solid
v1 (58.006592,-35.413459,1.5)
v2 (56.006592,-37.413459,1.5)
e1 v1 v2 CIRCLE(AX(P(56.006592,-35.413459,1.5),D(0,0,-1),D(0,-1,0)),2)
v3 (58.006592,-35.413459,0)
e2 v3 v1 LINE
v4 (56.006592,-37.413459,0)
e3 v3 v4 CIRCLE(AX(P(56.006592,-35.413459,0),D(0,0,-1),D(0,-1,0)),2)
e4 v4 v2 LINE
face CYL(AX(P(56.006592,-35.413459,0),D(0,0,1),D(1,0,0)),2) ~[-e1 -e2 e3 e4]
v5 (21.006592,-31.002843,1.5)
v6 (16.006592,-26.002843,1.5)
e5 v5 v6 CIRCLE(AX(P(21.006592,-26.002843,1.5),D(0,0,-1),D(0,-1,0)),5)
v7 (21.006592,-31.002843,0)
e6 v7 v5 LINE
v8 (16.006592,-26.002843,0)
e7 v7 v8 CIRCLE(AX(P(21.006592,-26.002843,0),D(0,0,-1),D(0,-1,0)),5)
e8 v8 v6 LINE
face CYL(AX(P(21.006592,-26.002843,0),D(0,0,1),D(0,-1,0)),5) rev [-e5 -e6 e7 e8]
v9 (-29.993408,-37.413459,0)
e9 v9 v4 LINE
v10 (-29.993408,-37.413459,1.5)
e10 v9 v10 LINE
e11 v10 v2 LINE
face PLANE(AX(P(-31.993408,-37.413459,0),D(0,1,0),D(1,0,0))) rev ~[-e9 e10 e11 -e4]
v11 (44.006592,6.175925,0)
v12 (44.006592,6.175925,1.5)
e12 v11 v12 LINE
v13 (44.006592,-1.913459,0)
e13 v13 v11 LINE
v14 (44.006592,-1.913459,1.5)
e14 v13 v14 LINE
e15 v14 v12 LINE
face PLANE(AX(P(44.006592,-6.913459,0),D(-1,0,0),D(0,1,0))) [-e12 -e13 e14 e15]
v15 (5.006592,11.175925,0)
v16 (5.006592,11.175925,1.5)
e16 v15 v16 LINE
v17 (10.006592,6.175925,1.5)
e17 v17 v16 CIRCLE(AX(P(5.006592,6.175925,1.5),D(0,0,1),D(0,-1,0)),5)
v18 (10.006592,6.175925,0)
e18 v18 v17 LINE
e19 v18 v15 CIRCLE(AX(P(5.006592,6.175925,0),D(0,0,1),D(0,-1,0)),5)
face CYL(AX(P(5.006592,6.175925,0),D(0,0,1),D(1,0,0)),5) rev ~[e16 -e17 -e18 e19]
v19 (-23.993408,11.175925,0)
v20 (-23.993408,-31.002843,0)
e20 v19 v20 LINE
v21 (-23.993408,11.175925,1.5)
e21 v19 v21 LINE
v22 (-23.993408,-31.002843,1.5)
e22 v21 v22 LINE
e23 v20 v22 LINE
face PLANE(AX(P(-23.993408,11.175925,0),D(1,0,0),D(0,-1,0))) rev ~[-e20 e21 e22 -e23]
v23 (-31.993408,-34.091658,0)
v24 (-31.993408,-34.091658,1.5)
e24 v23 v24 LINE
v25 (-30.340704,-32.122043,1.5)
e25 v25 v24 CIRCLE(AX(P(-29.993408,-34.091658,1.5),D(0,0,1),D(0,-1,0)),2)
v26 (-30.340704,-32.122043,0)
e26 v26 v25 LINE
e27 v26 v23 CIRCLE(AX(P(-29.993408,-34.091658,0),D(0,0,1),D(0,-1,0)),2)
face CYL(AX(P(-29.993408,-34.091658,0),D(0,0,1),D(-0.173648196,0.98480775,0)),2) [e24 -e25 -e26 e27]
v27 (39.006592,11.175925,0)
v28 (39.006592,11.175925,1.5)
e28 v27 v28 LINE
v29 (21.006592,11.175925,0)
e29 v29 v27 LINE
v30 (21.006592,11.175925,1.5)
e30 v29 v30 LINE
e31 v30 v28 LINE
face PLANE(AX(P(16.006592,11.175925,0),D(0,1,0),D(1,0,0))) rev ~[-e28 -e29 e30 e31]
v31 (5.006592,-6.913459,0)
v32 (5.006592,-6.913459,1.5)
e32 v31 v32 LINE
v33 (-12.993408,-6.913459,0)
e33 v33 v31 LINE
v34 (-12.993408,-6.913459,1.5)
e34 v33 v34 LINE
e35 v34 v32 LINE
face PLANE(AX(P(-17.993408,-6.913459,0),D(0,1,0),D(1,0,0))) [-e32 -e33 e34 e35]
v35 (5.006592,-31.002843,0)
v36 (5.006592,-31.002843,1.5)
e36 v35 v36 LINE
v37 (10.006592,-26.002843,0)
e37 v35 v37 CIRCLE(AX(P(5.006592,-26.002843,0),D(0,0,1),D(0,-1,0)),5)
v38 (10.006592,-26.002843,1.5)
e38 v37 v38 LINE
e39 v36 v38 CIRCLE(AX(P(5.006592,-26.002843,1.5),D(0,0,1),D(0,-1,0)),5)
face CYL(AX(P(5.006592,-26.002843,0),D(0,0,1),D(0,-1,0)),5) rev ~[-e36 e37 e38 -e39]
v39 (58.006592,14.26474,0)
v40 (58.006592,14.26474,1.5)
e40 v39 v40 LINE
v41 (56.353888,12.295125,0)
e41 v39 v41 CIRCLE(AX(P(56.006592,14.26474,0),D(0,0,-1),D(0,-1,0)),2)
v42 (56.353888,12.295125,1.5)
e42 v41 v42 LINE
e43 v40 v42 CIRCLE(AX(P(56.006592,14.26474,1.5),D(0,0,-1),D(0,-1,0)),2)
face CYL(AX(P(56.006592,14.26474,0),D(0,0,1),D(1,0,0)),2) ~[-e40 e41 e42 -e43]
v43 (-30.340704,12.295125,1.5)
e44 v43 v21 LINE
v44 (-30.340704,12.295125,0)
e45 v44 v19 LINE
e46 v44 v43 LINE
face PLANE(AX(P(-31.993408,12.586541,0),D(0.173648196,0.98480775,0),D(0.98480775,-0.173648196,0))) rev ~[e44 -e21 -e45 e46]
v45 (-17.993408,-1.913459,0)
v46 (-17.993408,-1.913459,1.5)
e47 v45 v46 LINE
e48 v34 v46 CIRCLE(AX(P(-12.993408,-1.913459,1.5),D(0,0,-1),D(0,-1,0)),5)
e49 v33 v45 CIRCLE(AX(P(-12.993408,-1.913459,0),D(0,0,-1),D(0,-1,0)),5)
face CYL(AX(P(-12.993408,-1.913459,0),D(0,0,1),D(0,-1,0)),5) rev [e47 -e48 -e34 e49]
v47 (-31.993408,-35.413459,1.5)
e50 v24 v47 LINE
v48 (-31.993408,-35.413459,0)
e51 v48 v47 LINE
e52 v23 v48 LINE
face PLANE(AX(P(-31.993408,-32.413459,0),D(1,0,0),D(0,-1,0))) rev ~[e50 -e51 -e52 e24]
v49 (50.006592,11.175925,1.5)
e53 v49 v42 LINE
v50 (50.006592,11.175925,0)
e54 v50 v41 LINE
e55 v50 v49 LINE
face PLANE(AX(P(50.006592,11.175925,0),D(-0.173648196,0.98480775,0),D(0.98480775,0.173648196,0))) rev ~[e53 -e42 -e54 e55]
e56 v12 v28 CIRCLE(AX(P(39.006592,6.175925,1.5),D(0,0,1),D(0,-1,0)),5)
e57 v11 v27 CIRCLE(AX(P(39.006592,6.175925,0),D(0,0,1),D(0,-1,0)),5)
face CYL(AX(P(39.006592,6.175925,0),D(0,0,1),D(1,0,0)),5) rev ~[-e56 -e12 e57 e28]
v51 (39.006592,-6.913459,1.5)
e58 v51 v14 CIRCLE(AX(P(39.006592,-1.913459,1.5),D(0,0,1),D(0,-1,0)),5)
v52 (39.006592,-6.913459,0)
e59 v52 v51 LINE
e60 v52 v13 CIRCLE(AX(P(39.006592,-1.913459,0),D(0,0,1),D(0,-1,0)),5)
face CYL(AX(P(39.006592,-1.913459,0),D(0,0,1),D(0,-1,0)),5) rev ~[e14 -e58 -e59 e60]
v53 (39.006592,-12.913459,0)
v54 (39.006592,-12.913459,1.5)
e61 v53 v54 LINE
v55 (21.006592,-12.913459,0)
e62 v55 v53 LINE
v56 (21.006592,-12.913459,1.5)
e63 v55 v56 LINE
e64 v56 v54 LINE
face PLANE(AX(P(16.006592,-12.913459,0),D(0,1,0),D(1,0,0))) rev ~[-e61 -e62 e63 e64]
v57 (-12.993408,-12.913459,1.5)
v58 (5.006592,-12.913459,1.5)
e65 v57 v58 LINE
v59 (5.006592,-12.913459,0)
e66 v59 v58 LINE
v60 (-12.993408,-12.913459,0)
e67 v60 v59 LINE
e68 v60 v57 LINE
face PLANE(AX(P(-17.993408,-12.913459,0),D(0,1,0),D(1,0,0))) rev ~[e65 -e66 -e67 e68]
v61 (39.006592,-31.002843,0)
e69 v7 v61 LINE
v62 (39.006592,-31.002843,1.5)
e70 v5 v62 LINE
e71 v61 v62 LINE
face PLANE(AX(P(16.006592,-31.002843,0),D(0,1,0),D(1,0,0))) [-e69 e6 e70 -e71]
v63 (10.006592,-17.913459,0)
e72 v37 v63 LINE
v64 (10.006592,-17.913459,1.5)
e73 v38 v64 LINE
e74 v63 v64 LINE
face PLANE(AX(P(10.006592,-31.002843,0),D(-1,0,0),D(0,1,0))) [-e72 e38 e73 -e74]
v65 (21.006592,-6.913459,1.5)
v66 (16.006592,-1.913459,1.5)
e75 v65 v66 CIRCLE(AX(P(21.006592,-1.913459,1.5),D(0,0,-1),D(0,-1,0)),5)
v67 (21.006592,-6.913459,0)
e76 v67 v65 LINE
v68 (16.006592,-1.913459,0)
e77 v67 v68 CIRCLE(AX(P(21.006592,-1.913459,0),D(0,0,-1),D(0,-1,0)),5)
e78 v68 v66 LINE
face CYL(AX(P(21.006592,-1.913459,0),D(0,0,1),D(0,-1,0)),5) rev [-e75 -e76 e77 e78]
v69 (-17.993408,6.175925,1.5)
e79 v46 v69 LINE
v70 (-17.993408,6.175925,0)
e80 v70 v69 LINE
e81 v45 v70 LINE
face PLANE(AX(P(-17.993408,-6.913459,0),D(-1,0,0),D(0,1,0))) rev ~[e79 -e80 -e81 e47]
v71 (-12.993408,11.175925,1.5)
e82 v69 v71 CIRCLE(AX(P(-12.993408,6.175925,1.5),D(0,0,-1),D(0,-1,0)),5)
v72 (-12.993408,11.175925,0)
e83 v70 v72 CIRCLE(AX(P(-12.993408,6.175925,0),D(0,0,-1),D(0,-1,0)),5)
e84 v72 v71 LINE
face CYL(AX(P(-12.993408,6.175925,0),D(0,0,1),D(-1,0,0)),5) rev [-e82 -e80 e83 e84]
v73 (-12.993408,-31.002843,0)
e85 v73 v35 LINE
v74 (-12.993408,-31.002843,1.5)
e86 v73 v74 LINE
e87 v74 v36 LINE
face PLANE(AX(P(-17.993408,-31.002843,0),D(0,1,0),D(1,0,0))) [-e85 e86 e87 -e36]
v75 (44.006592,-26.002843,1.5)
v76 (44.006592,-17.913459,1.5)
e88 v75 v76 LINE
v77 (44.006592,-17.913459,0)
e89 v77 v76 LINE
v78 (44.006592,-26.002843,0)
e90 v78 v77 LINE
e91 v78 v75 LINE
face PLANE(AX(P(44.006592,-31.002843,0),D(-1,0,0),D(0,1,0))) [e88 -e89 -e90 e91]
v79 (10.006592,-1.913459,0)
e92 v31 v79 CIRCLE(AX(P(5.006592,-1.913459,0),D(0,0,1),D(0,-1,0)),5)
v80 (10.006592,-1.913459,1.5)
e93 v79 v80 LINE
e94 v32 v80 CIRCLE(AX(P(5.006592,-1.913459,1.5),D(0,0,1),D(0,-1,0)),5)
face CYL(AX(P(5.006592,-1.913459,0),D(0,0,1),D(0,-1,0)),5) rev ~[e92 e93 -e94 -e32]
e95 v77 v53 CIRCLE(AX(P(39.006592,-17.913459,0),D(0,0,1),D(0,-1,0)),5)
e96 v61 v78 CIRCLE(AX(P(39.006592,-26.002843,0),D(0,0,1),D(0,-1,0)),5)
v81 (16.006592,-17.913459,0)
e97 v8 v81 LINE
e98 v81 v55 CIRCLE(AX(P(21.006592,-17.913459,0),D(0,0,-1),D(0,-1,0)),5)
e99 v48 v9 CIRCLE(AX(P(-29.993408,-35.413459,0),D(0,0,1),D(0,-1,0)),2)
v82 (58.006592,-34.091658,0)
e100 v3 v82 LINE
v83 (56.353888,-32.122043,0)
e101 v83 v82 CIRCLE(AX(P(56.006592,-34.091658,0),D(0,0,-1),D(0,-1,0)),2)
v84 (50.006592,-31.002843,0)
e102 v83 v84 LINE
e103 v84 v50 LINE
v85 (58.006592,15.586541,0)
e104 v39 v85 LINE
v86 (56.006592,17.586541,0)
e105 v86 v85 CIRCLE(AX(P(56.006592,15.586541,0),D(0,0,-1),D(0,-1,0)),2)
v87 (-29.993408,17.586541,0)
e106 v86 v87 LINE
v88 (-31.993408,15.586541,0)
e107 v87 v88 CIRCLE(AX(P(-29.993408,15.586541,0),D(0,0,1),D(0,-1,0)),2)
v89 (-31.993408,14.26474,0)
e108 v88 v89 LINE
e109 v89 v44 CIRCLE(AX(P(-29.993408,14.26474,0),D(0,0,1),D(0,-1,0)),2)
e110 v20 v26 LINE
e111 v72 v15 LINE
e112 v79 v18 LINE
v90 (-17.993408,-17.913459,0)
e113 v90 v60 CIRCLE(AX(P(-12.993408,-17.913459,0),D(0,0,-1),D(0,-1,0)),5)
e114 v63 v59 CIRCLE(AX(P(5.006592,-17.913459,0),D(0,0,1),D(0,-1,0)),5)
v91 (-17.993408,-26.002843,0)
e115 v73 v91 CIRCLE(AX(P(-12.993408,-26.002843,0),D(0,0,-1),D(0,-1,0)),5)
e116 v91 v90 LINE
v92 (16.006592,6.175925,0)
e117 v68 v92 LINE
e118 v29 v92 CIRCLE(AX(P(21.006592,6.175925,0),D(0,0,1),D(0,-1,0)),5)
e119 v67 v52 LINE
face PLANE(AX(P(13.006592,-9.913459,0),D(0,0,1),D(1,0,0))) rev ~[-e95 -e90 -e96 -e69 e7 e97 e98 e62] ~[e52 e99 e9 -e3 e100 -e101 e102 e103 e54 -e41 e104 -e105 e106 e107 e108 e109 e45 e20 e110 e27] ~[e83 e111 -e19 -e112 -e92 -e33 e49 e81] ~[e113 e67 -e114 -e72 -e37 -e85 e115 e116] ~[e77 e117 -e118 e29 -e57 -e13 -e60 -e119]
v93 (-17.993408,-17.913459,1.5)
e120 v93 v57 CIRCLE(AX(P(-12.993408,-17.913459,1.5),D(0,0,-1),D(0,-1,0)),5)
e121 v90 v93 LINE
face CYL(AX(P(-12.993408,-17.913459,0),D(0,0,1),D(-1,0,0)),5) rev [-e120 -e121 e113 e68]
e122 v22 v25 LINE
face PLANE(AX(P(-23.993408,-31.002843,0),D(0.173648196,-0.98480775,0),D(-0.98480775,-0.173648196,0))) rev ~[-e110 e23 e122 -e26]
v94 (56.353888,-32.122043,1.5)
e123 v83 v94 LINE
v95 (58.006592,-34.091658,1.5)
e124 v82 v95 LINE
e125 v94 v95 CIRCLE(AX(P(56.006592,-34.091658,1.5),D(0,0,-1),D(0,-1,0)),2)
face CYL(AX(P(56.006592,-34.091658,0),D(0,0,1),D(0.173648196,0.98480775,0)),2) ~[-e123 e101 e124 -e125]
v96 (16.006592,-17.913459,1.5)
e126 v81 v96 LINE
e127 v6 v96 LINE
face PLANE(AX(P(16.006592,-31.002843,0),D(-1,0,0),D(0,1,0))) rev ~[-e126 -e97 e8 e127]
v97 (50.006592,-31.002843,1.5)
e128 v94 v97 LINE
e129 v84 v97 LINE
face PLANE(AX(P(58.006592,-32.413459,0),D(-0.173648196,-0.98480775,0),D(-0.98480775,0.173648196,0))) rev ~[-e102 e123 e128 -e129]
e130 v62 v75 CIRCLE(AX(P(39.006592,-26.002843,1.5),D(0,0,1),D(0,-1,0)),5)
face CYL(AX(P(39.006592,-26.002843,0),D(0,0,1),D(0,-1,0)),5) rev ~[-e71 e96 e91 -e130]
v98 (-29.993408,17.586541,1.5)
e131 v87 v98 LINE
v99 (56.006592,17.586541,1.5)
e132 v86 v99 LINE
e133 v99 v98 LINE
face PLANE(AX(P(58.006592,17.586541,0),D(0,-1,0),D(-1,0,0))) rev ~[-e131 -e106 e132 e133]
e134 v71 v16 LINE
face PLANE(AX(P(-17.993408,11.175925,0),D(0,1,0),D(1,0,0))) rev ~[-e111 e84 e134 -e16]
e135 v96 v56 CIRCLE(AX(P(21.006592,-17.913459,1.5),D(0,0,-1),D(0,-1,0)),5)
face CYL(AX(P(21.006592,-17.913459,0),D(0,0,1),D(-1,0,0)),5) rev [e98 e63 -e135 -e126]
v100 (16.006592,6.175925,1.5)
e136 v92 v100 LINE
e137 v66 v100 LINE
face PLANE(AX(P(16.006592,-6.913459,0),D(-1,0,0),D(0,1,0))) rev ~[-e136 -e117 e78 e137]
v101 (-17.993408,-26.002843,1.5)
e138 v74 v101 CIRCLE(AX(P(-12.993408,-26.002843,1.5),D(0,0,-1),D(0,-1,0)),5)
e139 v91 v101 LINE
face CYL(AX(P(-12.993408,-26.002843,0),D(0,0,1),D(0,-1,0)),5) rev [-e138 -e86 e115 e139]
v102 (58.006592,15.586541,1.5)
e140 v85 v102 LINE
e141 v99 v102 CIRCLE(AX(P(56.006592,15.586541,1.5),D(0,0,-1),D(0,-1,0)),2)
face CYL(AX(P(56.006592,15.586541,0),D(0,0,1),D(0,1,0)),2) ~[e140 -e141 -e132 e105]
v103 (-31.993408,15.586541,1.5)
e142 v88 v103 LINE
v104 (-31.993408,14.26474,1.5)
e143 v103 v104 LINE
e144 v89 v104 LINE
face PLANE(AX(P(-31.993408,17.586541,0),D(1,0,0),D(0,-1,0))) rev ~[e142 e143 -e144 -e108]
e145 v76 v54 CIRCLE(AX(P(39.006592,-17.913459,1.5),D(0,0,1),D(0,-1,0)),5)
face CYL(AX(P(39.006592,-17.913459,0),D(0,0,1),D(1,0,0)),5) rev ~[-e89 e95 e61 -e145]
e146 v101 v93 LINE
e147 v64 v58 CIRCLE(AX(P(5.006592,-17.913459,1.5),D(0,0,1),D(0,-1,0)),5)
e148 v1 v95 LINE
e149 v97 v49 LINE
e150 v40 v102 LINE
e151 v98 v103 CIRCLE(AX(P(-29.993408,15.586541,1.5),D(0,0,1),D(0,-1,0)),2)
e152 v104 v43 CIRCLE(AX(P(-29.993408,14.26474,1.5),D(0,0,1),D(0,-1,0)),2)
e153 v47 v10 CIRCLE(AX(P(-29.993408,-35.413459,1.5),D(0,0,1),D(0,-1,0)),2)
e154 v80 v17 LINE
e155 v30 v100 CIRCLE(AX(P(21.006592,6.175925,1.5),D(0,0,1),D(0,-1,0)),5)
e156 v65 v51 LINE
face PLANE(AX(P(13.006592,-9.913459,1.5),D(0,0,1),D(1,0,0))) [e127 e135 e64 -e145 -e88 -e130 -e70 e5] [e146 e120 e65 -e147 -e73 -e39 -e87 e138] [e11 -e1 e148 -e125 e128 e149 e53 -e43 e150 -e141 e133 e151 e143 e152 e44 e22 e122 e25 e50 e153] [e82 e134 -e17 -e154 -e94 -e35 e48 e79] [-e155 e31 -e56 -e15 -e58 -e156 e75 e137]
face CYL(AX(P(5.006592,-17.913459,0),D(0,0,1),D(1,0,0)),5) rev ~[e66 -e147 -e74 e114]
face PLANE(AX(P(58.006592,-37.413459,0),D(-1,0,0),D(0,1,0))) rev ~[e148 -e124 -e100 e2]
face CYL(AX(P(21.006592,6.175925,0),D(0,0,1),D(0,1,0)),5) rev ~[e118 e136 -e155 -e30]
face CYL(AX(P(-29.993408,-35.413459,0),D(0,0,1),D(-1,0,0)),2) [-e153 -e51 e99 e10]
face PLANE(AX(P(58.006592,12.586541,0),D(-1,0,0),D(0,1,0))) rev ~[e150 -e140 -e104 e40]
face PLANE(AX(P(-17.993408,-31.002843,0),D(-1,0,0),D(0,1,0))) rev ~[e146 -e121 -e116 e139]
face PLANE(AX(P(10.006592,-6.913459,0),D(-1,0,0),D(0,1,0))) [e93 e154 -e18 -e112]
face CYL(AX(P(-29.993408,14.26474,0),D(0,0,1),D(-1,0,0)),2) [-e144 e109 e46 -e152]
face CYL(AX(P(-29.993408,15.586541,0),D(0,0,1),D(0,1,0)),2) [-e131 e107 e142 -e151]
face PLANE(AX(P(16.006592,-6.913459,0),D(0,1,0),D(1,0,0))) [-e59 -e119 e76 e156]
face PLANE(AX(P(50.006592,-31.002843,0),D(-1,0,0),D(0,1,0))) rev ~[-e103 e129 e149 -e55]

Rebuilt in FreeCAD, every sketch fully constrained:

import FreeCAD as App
import Part
import Sketcher
Q = App.Units.Quantity


def edges_at(feature, points):
    """Names of the edges that pass closest to the given points."""
    edges = feature.Shape.Edges
    near = lambda p: min(range(len(edges)), key=lambda i: edges[i].distToShape(Part.Vertex(*p))[0])
    return sorted({f"Edge{near(p) + 1}" for p in points})


def add_polygon(sketch, points):
    """Adds a closed chain of lines whose ends are joined by coincident constraints."""
    first, n = sketch.GeometryCount, len(points)
    for a, b in zip(points, points[1:] + points[:1]):
        sketch.addGeometry(Part.LineSegment(App.Vector(*a, 0), App.Vector(*b, 0)), False)
    for i in range(n):
        sketch.addConstraint(Sketcher.Constraint("Coincident", first + i, 2, first + (i + 1) % n, 1))

doc = App.newDocument("Part")
body = doc.addObject("PartDesign::Body", "Body")

sketch1 = doc.addObject("Sketcher::SketchObject", "Sketch")
body.addObject(sketch1)
sketch1.AttachmentSupport = (doc.XY_Plane, [""])
sketch1.MapMode = "FlatFace"
add_polygon(sketch1, [(58.006592, 17.586541), (-31.993408, 17.586541), (-31.993408, 12.586541), (-23.993408, 11.175925), (-23.993408, -31.002843), (-31.993408, -32.413459), (-31.993408, -37.413459), (58.006592, -37.413459), (58.006592, -32.413459), (50.006592, -31.002843), (50.006592, 11.175925), (58.006592, 12.586541)])
add_polygon(sketch1, [(10.006592, -31.002843), (-17.993408, -31.002843), (-17.993408, -12.913459), (10.006592, -12.913459)])
add_polygon(sketch1, [(44.006592, -31.002843), (16.006592, -31.002843), (16.006592, -12.913459), (44.006592, -12.913459)])
add_polygon(sketch1, [(10.006592, -6.913459), (-17.993408, -6.913459), (-17.993408, 11.175925), (10.006592, 11.175925)])
add_polygon(sketch1, [(44.006592, -6.913459), (16.006592, -6.913459), (16.006592, 11.175925), (44.006592, 11.175925)])
sketch1.addConstraint([
    Sketcher.Constraint("Horizontal", 0),
    Sketcher.Constraint("Vertical", 1),
    Sketcher.Constraint("Vertical", 3),
    Sketcher.Constraint("Vertical", 5),
    Sketcher.Constraint("Horizontal", 6),
    Sketcher.Constraint("Vertical", 7),
    Sketcher.Constraint("Vertical", 9),
    Sketcher.Constraint("Vertical", 11),
    Sketcher.Constraint("Horizontal", 12),
    Sketcher.Constraint("Vertical", 13),
    Sketcher.Constraint("Horizontal", 14),
    Sketcher.Constraint("Vertical", 15),
    Sketcher.Constraint("Horizontal", 16),
    Sketcher.Constraint("Vertical", 17),
    Sketcher.Constraint("Horizontal", 18),
    Sketcher.Constraint("Vertical", 19),
    Sketcher.Constraint("Horizontal", 20),
    Sketcher.Constraint("Vertical", 21),
    Sketcher.Constraint("Horizontal", 22),
    Sketcher.Constraint("Vertical", 23),
    Sketcher.Constraint("Horizontal", 24),
    Sketcher.Constraint("Vertical", 25),
    Sketcher.Constraint("Horizontal", 26),
    Sketcher.Constraint("Vertical", 27),
    Sketcher.Constraint("Parallel", 2, 8),
    Sketcher.Constraint("Parallel", 4, 10),
    Sketcher.Constraint("Horizontal", 4, 2, 7, 2),
    Sketcher.Constraint("Horizontal", 3, 2, 8, 2),
    Sketcher.Constraint("Horizontal", 2, 2, 9, 2),
    Sketcher.Constraint("Horizontal", 1, 2, 10, 2),
    Sketcher.Constraint("Horizontal", 8, 2, 12, 2),
    Sketcher.Constraint("Horizontal", 15, 2, 16, 2),
    Sketcher.Constraint("Horizontal", 14, 2, 17, 2),
    Sketcher.Constraint("Horizontal", 9, 2, 21, 2),
    Sketcher.Constraint("Horizontal", 23, 2, 24, 2),
    Sketcher.Constraint("Horizontal", 22, 2, 25, 2),
    Sketcher.Constraint("Vertical", 1, 2, 4, 2),
    Sketcher.Constraint("Vertical", 7, 2, 10, 2),
    Sketcher.Constraint("Vertical", 13, 2, 20, 2),
    Sketcher.Constraint("Vertical", 15, 2, 22, 2),
    Sketcher.Constraint("Vertical", 17, 2, 24, 2),
    Sketcher.Constraint("Vertical", 19, 2, 26, 2),
    Sketcher.Constraint("Equal", 14, 16),
    Sketcher.Constraint("Equal", 1, 5),
    Sketcher.Constraint("Equal", 19, 21),
    Sketcher.Constraint("DistanceX", 0, 2, 0, 1, 90.0),
    Sketcher.Constraint("DistanceX", 12, 2, 12, 1, 28.0),
    Sketcher.Constraint("DistanceY", 1, 2, 1, 1, 5.0),
    Sketcher.Constraint("Angle", 2, Q("-10.000001 deg")),
    Sketcher.Constraint("DistanceX", 1, 2, 2, 2, 8.0),
    Sketcher.Constraint("DistanceY", 4, 2, 1, 2, 45.0),
    Sketcher.Constraint("DistanceX", 3, 2, 12, 2, 6.0),
    Sketcher.Constraint("DistanceX", 15, 2, 16, 2, 6.0),
    Sketcher.Constraint("DistanceY", 13, 2, 20, 2, 6.0),
    Sketcher.Constraint("DistanceY", -1, 1, 0, 2, 17.586541),
    Sketcher.Constraint("DistanceX", -1, 1, 6, 2, 58.006592),
])
pad1 = doc.addObject("PartDesign::Pad", "Pad")
body.addObject(pad1)
pad1.Profile = sketch1
pad1.Length = 1.5
doc.recompute()

fillet = doc.addObject("PartDesign::Fillet", "Fillet")
body.addObject(fillet)
fillet.Base = (pad1, edges_at(pad1, [
    (44.007, 11.176, 0.75),
    (10.007, 11.176, 0.75),
    (44.007, -12.913, 0.75),
    (10.007, -12.913, 0.75),
    (16.007, 11.176, 0.75),
    (-17.993, 11.176, 0.75),
    (-17.993, -12.913, 0.75),
    (16.007, -12.913, 0.75),
    (16.007, -6.913, 0.75),
    (-17.993, -6.913, 0.75),
    (-17.993, -31.003, 0.75),
    (16.007, -31.003, 0.75),
    (44.007, -6.913, 0.75),
    (10.007, -6.913, 0.75),
    (44.007, -31.003, 0.75),
    (10.007, -31.003, 0.75),
]))
fillet.Radius = 5
doc.recompute()

fillet2 = doc.addObject("PartDesign::Fillet", "Fillet001")
body.addObject(fillet2)
fillet2.Base = (fillet, edges_at(fillet, [
    (-31.993, 12.587, 0.75),
    (-31.993, -32.413, 0.75),
    (58.007, 12.587, 0.75),
    (58.007, -32.413, 0.75),
    (58.007, 17.587, 0.75),
    (58.007, -37.413, 0.75),
    (-31.993, -37.413, 0.75),
    (-31.993, 17.587, 0.75),
]))
fillet2.Radius = 2

doc.recompute()
